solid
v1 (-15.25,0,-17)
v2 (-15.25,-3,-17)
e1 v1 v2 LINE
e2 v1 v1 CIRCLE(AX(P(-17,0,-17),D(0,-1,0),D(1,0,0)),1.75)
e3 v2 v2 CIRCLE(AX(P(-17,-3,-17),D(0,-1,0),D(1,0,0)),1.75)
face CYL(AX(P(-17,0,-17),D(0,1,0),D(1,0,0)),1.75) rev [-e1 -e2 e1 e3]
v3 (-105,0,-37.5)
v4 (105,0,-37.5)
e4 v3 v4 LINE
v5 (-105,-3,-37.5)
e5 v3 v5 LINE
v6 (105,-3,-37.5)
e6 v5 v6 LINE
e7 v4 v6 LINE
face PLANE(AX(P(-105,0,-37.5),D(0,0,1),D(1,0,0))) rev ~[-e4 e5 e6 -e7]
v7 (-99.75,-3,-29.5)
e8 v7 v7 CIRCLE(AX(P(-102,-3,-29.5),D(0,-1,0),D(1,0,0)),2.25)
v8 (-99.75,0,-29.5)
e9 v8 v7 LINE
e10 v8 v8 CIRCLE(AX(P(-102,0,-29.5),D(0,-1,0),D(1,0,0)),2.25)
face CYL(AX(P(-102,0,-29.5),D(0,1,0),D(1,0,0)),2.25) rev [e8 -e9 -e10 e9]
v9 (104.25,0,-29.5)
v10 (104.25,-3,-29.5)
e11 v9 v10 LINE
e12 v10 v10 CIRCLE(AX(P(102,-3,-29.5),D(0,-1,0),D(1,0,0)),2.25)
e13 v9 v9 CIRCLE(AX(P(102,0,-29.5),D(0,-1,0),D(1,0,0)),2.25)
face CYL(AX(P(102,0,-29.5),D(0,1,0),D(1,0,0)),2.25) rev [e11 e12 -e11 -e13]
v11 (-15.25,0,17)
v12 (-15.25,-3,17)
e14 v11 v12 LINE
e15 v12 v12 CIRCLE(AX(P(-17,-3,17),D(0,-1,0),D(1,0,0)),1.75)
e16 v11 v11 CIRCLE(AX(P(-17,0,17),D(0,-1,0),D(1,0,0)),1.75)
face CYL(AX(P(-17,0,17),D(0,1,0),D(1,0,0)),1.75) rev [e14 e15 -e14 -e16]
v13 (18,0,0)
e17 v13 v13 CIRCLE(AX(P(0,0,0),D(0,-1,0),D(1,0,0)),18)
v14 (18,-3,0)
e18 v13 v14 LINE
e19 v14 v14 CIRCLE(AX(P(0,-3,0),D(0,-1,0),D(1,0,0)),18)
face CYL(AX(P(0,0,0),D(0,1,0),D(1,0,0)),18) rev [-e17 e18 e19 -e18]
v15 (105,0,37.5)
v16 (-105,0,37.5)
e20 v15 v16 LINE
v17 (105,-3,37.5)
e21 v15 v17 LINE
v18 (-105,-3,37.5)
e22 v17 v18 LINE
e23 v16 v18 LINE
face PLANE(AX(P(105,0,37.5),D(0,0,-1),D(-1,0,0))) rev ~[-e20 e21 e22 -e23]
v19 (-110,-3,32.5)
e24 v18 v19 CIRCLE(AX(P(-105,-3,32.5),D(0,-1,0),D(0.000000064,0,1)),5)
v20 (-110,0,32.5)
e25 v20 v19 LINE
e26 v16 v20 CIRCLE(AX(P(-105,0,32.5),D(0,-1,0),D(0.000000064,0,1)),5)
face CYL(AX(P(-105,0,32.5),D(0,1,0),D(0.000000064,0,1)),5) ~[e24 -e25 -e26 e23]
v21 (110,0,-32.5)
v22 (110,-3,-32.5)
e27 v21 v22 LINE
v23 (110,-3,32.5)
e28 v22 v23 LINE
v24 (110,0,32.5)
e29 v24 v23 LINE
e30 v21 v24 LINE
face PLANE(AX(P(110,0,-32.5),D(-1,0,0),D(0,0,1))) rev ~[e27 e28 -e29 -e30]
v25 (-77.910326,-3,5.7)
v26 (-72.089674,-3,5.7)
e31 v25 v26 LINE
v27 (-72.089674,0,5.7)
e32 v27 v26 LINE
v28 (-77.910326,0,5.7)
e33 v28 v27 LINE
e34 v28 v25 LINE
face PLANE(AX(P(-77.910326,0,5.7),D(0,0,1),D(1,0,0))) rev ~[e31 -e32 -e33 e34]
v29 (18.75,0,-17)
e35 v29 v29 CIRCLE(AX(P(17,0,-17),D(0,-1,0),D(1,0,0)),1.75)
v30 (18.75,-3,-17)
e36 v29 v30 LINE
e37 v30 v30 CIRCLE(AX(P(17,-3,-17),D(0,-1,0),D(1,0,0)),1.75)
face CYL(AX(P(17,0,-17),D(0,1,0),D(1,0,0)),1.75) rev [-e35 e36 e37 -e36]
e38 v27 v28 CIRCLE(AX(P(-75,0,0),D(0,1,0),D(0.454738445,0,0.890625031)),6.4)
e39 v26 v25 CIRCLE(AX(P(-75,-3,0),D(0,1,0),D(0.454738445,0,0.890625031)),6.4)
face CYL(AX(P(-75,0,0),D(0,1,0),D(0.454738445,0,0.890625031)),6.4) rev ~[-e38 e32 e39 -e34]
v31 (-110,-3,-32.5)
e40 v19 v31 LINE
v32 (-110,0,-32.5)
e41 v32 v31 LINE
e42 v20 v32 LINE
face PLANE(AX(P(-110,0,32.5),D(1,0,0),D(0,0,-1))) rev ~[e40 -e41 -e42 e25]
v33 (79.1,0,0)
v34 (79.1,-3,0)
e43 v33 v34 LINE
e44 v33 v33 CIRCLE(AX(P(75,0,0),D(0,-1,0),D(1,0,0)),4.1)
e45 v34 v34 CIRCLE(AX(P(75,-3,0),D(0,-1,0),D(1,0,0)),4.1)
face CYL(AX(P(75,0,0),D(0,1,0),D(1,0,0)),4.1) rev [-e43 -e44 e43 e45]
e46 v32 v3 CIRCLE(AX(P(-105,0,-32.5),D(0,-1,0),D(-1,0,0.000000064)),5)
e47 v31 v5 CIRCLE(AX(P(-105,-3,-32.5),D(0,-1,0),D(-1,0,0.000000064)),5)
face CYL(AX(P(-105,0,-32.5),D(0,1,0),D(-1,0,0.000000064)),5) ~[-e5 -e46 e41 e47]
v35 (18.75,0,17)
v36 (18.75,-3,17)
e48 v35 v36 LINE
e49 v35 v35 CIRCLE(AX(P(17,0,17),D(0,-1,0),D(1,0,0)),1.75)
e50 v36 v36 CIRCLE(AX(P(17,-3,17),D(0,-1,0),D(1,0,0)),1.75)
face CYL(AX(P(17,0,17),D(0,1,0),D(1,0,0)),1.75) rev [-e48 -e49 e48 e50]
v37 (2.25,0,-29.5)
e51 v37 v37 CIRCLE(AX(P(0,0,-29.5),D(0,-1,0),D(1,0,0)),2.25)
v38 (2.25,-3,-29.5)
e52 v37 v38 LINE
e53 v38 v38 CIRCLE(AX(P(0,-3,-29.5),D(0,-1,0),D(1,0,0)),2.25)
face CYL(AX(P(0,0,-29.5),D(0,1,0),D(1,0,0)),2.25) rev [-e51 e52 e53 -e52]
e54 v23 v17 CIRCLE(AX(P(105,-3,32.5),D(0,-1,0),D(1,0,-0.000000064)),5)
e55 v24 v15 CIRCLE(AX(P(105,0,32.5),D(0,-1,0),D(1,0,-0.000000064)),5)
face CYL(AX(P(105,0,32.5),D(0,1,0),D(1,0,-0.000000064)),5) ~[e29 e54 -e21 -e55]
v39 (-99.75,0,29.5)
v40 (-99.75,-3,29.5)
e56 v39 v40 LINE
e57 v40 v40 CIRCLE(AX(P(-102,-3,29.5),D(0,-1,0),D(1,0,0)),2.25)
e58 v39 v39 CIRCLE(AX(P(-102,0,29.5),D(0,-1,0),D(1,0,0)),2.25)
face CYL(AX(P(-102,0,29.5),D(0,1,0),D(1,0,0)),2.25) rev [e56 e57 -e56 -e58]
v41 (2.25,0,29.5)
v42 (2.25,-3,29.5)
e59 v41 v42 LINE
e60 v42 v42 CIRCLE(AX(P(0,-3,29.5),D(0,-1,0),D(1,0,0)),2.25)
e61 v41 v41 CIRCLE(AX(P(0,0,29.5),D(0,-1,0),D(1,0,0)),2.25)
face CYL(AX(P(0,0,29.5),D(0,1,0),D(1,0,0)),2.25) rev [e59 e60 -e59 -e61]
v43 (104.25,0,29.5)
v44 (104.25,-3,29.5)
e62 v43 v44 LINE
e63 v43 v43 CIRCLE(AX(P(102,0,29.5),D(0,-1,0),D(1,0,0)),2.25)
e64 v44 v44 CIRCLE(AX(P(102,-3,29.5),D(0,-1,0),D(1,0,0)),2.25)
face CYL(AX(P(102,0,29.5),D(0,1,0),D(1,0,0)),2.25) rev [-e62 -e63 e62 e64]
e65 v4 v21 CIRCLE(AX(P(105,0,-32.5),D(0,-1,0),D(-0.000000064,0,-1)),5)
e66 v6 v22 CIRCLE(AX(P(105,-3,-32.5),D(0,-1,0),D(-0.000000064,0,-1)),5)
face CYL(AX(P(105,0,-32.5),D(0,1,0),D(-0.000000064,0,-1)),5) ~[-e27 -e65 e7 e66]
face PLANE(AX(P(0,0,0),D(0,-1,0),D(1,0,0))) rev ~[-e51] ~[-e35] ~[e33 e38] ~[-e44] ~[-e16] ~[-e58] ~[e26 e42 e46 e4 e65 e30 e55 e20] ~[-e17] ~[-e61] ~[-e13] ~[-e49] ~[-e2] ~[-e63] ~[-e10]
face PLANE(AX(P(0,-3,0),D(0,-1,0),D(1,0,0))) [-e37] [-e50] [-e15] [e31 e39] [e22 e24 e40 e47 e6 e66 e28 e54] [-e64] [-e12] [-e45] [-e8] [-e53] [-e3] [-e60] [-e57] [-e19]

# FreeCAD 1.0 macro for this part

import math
import FreeCAD as App
import Part
import Sketcher
from FreeCAD import Vector

doc = App.newDocument("Part")
params = doc.addObject("Spreadsheet::Sheet", "Params")
for row, (alias, value) in enumerate([
    ("sketch1_diameter", "36 mm"),
    ("sketch1_radius", "5 mm"),
    ("sketch1_diameter2", "4.5 mm"),
    ("sketch1_diameter3", "3.5 mm"),
    ("sketch1_diameter4", "8.2 mm"),
    ("pad1_length", "3 mm"),
], start=1):
    params.set(f"A{row}", alias)
    params.set(f"B{row}", "=" + value)
    params.setAlias(f"B{row}", alias)

body = doc.addObject("PartDesign::Body", "Body")

# Sketch on XZ plane
sketch1 = body.newObject("Sketcher::SketchObject", "Sketch")
sketch1.AttachmentSupport = (doc.getObject("XZ_Plane"), [""])
sketch1.MapMode = "FlatFace"
sketch1.addGeometry([
    Part.ArcOfCircle(Part.Circle(Vector(105, 32.5, 0), Vector(0, 0, 1), 5), math.radians(-0.000004), math.radians(90.000004)),  # 0
    Part.LineSegment(Vector(105, 37.5, 0), Vector(-105, 37.5, 0)),  # 1
    Part.ArcOfCircle(Part.Circle(Vector(-105, 32.5, 0), Vector(0, 0, 1), 5), math.radians(89.999996), math.radians(180.000004)),  # 2
    Part.LineSegment(Vector(-110, 32.5, 0), Vector(-110, -32.5, 0)),  # 3
    Part.ArcOfCircle(Part.Circle(Vector(-105, -32.5, 0), Vector(0, 0, 1), 5), math.radians(179.999996), math.radians(270.000004)),  # 4
    Part.LineSegment(Vector(-105, -37.5, 0), Vector(105, -37.5, 0)),  # 5
    Part.ArcOfCircle(Part.Circle(Vector(105, -32.5, 0), Vector(0, 0, 1), 5), math.radians(-90.000004), math.radians(0.000004)),  # 6
    Part.LineSegment(Vector(110, -32.5, 0), Vector(110, 32.5, 0)),  # 7
    Part.Circle(Vector(-102, -29.5, 0), Vector(0, 0, 1), 2.25),  # 8
    Part.Circle(Vector(0, -29.5, 0), Vector(0, 0, 1), 2.25),  # 9
    Part.Circle(Vector(-17, -17, 0), Vector(0, 0, 1), 1.75),  # 10
    Part.LineSegment(Vector(-77.910326, 5.7, 0), Vector(-72.089674, 5.7, 0)),  # 11
    Part.ArcOfCircle(Part.Circle(Vector(-75, 0, 0), Vector(0, 0, 1), 6.4), math.radians(117.048107), math.radians(422.951893)),  # 12
    Part.Circle(Vector(17, -17, 0), Vector(0, 0, 1), 1.75),  # 13
    Part.Circle(Vector(102, -29.5, 0), Vector(0, 0, 1), 2.25),  # 14
    Part.Circle(Vector(0, 0, 0), Vector(0, 0, 1), 18),  # 15
    Part.Circle(Vector(-102, 29.5, 0), Vector(0, 0, 1), 2.25),  # 16
    Part.Circle(Vector(-17, 17, 0), Vector(0, 0, 1), 1.75),  # 17
    Part.Circle(Vector(0, 29.5, 0), Vector(0, 0, 1), 2.25),  # 18
    Part.Circle(Vector(75, 0, 0), Vector(0, 0, 1), 4.1),  # 19
    Part.Circle(Vector(17, 17, 0), Vector(0, 0, 1), 1.75),  # 20
    Part.Circle(Vector(102, 29.5, 0), Vector(0, 0, 1), 2.25),  # 21
], False)
sketch1.addConstraint([
    Sketcher.Constraint("Tangent", 0, 2, 1, 1),
    Sketcher.Constraint("Tangent", 1, 2, 2, 1),
    Sketcher.Constraint("Tangent", 2, 2, 3, 1),
    Sketcher.Constraint("Tangent", 3, 2, 4, 1),
    Sketcher.Constraint("Tangent", 4, 2, 5, 1),
    Sketcher.Constraint("Tangent", 5, 2, 6, 1),
    Sketcher.Constraint("Tangent", 6, 2, 7, 1),
    Sketcher.Constraint("Tangent", 7, 2, 0, 1),
    Sketcher.Constraint("Coincident", 11, 1, 12, 1),
    Sketcher.Constraint("Coincident", 12, 2, 11, 2),
    Sketcher.Constraint("Horizontal", 1),
    Sketcher.Constraint("Vertical", 3),
    Sketcher.Constraint("Horizontal", 5),
    Sketcher.Constraint("Vertical", 7),
    Sketcher.Constraint("Horizontal", 11),
    Sketcher.Constraint("Coincident", 15, 3, -1, 1),
    Sketcher.Constraint("Equal", 0, 2),
    Sketcher.Constraint("Equal", 2, 4),
    Sketcher.Constraint("Equal", 4, 6),
    Sketcher.Constraint("Equal", 8, 9),
    Sketcher.Constraint("Equal", 10, 13),
    Sketcher.Constraint("Equal", 9, 14),
    Sketcher.Constraint("Equal", 14, 16),
    Sketcher.Constraint("Equal", 13, 17),
    Sketcher.Constraint("Equal", 16, 18),
    Sketcher.Constraint("Equal", 17, 20),
    Sketcher.Constraint("Equal", 18, 21),
    Sketcher.Constraint("Symmetric", 0, 3, 4, 3, -1, 1),
    Sketcher.Constraint("Symmetric", 14, 3, 16, 3, -1, 1),
    Sketcher.Constraint("Symmetric", 13, 3, 17, 3, -1, 1),
    Sketcher.Constraint("Symmetric", 9, 3, 18, 3, -1, 1),
    Sketcher.Constraint("Symmetric", 12, 3, 19, 3, -1, 1),
    Sketcher.Constraint("Symmetric", 10, 3, 20, 3, -1, 1),
    Sketcher.Constraint("Symmetric", 8, 3, 21, 3, -1, 1),
    Sketcher.Constraint("Symmetric", 10, 3, 13, 3, -2),
    Sketcher.Constraint("Symmetric", 8, 3, 14, 3, -2),
    Sketcher.Constraint("PointOnObject", 9, 3, -2),
    Sketcher.Constraint("PointOnObject", 12, 3, -1),
    Sketcher.Constraint("Horizontal", 8, 3, 9, 3),
    Sketcher.Constraint("Diameter", 15, 36.0),
    Sketcher.Constraint("Radius", 0, 5.0),
    Sketcher.Constraint("Diameter", 8, 4.5),
    Sketcher.Constraint("Diameter", 10, 3.5),
    Sketcher.Constraint("Diameter", 19, 8.2),
    Sketcher.Constraint("Radius", 12, 6.4),
    Sketcher.Constraint("DistanceX", 1, 2, 1, 1, 210.0),
    Sketcher.Constraint("DistanceY", 3, 2, 3, 1, 65.0),
    Sketcher.Constraint("DistanceX", 8, 3, -1, 1, 102.0),
    Sketcher.Constraint("DistanceX", 10, 3, -1, 1, 17.0),
    Sketcher.Constraint("DistanceY", 10, 3, -1, 1, 17.0),
    Sketcher.Constraint("DistanceX", 12, 3, -1, 1, 75.0),
    Sketcher.Constraint("DistanceY", 4, 3, 8, 3, 3.0),
    Sketcher.Constraint("DistanceY", -1, 1, 11, 1, 5.7),
])
sketch1.setExpression("Constraints[39]", "Params.sketch1_diameter")
sketch1.setExpression("Constraints[40]", "Params.sketch1_radius")
sketch1.setExpression("Constraints[41]", "Params.sketch1_diameter2")
sketch1.setExpression("Constraints[42]", "Params.sketch1_diameter3")
sketch1.setExpression("Constraints[43]", "Params.sketch1_diameter4")
pad1 = body.newObject("PartDesign::Pad", "Pad")
pad1.Profile = sketch1
pad1.setExpression("Length", "Params.pad1_length")

doc.recompute()
